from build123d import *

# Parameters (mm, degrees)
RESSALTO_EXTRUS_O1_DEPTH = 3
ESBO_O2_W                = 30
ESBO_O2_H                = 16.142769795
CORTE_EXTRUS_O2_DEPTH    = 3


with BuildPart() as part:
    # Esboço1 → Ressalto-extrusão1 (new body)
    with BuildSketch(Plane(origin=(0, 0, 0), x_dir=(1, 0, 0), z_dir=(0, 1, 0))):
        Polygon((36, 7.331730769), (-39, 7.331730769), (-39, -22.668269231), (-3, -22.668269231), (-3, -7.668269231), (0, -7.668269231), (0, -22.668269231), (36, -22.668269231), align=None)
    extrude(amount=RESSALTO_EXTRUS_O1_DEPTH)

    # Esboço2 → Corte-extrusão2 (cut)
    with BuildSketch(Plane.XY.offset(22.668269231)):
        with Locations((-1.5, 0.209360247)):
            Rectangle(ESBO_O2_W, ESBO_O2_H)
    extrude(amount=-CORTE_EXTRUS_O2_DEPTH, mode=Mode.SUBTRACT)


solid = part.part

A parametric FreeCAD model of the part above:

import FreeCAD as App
import Part
import Sketcher

doc = App.newDocument("Part")
body = doc.addObject("PartDesign::Body", "Body")

# Sketch on XZ plane
sketch1 = body.newObject("Sketcher::SketchObject", "Sketch")
sketch1.AttachmentSupport = (doc.getObject("XZ_Plane"), [""])
sketch1.MapMode = "FlatFace"
sketch1.addGeometry([
    Part.LineSegment(App.Vector(36, -7.331731, 0), App.Vector(-39, -7.331731, 0)),  # 0
    Part.LineSegment(App.Vector(-39, -7.331731, 0), App.Vector(-39, 22.668269, 0)),  # 1
    Part.LineSegment(App.Vector(-39, 22.668269, 0), App.Vector(-3, 22.668269, 0)),  # 2
    Part.LineSegment(App.Vector(-3, 22.668269, 0), App.Vector(-3, 7.668269, 0)),  # 3
    Part.LineSegment(App.Vector(-3, 7.668269, 0), App.Vector(0, 7.668269, 0)),  # 4
    Part.LineSegment(App.Vector(0, 7.668269, 0), App.Vector(0, 22.668269, 0)),  # 5
    Part.LineSegment(App.Vector(0, 22.668269, 0), App.Vector(36, 22.668269, 0)),  # 6
    Part.LineSegment(App.Vector(36, 22.668269, 0), App.Vector(36, -7.331731, 0)),  # 7
], False)
sketch1.addConstraint([
    Sketcher.Constraint("Coincident", 0, 2, 1, 1),
    Sketcher.Constraint("Coincident", 1, 2, 2, 1),
    Sketcher.Constraint("Coincident", 2, 2, 3, 1),
    Sketcher.Constraint("Coincident", 3, 2, 4, 1),
    Sketcher.Constraint("Coincident", 4, 2, 5, 1),
    Sketcher.Constraint("Coincident", 5, 2, 6, 1),
    Sketcher.Constraint("Coincident", 6, 2, 7, 1),
    Sketcher.Constraint("Coincident", 7, 2, 0, 1),
    Sketcher.Constraint("Horizontal", 0),
    Sketcher.Constraint("Vertical", 1),
    Sketcher.Constraint("Horizontal", 2),
    Sketcher.Constraint("Vertical", 3),
    Sketcher.Constraint("Horizontal", 4),
    Sketcher.Constraint("Vertical", 5),
    Sketcher.Constraint("Horizontal", 6),
    Sketcher.Constraint("Vertical", 7),
    Sketcher.Constraint("PointOnObject", 4, 2, -2),
    Sketcher.Constraint("Horizontal", 2, 2, 5, 2),
    Sketcher.Constraint("Equal", 2, 6),
    Sketcher.Constraint("DistanceX", 0, 2, 0, 1, 75.0),
    Sketcher.Constraint("DistanceX", 2, 1, 2, 2, 36.0),
    Sketcher.Constraint("DistanceY", 1, 1, 1, 2, 30.0),
    Sketcher.Constraint("DistanceY", 3, 2, 3, 1, 15.0),
    Sketcher.Constraint("DistanceY", 0, 2, -1, 1, 7.331731),
])
pad1 = body.newObject("PartDesign::Pad", "Pad")
pad1.Profile = sketch1
pad1.Length = 3
pad1.Reversed = True

# Sketch on XY plane
sketch2 = body.newObject("Sketcher::SketchObject", "Sketch001")
sketch2.AttachmentSupport = (doc.getObject("XY_Plane"), [""])
sketch2.MapMode = "FlatFace"
sketch2.AttachmentOffset = App.Placement(App.Vector(0, 0, 22.668269), App.Rotation())
sketch2.addGeometry([
    Part.LineSegment(App.Vector(-16.5, 8.280745, 0), App.Vector(-16.5, -7.862025, 0)),
    Part.LineSegment(App.Vector(-16.5, -7.862025, 0), App.Vector(13.5, -7.862025, 0)),
    Part.LineSegment(App.Vector(13.5, -7.862025, 0), App.Vector(13.5, 8.280745, 0)),
    Part.LineSegment(App.Vector(13.5, 8.280745, 0), App.Vector(-16.5, 8.280745, 0)),
], False)
sketch2.addConstraint([
    Sketcher.Constraint("Coincident", 0, 2, 1, 1),
    Sketcher.Constraint("Coincident", 1, 2, 2, 1),
    Sketcher.Constraint("Coincident", 2, 2, 3, 1),
    Sketcher.Constraint("Coincident", 3, 2, 0, 1),
    Sketcher.Constraint("Vertical", 0),
    Sketcher.Constraint("Horizontal", 1),
    Sketcher.Constraint("Vertical", 2),
    Sketcher.Constraint("Horizontal", 3),
    Sketcher.Constraint("DistanceX", 1, 1, 1, 2, 30.0),
    Sketcher.Constraint("DistanceX", 0, 2, -1, 1, 16.5),
    Sketcher.Constraint("DistanceY", 0, 2, 0, 1, 16.14277),
    Sketcher.Constraint("DistanceY", 0, 2, -1, 1, 7.862025),
])
pocket1 = body.newObject("PartDesign::Pocket", "Pocket")
pocket1.Profile = sketch2
pocket1.Length = 3

doc.recompute()
